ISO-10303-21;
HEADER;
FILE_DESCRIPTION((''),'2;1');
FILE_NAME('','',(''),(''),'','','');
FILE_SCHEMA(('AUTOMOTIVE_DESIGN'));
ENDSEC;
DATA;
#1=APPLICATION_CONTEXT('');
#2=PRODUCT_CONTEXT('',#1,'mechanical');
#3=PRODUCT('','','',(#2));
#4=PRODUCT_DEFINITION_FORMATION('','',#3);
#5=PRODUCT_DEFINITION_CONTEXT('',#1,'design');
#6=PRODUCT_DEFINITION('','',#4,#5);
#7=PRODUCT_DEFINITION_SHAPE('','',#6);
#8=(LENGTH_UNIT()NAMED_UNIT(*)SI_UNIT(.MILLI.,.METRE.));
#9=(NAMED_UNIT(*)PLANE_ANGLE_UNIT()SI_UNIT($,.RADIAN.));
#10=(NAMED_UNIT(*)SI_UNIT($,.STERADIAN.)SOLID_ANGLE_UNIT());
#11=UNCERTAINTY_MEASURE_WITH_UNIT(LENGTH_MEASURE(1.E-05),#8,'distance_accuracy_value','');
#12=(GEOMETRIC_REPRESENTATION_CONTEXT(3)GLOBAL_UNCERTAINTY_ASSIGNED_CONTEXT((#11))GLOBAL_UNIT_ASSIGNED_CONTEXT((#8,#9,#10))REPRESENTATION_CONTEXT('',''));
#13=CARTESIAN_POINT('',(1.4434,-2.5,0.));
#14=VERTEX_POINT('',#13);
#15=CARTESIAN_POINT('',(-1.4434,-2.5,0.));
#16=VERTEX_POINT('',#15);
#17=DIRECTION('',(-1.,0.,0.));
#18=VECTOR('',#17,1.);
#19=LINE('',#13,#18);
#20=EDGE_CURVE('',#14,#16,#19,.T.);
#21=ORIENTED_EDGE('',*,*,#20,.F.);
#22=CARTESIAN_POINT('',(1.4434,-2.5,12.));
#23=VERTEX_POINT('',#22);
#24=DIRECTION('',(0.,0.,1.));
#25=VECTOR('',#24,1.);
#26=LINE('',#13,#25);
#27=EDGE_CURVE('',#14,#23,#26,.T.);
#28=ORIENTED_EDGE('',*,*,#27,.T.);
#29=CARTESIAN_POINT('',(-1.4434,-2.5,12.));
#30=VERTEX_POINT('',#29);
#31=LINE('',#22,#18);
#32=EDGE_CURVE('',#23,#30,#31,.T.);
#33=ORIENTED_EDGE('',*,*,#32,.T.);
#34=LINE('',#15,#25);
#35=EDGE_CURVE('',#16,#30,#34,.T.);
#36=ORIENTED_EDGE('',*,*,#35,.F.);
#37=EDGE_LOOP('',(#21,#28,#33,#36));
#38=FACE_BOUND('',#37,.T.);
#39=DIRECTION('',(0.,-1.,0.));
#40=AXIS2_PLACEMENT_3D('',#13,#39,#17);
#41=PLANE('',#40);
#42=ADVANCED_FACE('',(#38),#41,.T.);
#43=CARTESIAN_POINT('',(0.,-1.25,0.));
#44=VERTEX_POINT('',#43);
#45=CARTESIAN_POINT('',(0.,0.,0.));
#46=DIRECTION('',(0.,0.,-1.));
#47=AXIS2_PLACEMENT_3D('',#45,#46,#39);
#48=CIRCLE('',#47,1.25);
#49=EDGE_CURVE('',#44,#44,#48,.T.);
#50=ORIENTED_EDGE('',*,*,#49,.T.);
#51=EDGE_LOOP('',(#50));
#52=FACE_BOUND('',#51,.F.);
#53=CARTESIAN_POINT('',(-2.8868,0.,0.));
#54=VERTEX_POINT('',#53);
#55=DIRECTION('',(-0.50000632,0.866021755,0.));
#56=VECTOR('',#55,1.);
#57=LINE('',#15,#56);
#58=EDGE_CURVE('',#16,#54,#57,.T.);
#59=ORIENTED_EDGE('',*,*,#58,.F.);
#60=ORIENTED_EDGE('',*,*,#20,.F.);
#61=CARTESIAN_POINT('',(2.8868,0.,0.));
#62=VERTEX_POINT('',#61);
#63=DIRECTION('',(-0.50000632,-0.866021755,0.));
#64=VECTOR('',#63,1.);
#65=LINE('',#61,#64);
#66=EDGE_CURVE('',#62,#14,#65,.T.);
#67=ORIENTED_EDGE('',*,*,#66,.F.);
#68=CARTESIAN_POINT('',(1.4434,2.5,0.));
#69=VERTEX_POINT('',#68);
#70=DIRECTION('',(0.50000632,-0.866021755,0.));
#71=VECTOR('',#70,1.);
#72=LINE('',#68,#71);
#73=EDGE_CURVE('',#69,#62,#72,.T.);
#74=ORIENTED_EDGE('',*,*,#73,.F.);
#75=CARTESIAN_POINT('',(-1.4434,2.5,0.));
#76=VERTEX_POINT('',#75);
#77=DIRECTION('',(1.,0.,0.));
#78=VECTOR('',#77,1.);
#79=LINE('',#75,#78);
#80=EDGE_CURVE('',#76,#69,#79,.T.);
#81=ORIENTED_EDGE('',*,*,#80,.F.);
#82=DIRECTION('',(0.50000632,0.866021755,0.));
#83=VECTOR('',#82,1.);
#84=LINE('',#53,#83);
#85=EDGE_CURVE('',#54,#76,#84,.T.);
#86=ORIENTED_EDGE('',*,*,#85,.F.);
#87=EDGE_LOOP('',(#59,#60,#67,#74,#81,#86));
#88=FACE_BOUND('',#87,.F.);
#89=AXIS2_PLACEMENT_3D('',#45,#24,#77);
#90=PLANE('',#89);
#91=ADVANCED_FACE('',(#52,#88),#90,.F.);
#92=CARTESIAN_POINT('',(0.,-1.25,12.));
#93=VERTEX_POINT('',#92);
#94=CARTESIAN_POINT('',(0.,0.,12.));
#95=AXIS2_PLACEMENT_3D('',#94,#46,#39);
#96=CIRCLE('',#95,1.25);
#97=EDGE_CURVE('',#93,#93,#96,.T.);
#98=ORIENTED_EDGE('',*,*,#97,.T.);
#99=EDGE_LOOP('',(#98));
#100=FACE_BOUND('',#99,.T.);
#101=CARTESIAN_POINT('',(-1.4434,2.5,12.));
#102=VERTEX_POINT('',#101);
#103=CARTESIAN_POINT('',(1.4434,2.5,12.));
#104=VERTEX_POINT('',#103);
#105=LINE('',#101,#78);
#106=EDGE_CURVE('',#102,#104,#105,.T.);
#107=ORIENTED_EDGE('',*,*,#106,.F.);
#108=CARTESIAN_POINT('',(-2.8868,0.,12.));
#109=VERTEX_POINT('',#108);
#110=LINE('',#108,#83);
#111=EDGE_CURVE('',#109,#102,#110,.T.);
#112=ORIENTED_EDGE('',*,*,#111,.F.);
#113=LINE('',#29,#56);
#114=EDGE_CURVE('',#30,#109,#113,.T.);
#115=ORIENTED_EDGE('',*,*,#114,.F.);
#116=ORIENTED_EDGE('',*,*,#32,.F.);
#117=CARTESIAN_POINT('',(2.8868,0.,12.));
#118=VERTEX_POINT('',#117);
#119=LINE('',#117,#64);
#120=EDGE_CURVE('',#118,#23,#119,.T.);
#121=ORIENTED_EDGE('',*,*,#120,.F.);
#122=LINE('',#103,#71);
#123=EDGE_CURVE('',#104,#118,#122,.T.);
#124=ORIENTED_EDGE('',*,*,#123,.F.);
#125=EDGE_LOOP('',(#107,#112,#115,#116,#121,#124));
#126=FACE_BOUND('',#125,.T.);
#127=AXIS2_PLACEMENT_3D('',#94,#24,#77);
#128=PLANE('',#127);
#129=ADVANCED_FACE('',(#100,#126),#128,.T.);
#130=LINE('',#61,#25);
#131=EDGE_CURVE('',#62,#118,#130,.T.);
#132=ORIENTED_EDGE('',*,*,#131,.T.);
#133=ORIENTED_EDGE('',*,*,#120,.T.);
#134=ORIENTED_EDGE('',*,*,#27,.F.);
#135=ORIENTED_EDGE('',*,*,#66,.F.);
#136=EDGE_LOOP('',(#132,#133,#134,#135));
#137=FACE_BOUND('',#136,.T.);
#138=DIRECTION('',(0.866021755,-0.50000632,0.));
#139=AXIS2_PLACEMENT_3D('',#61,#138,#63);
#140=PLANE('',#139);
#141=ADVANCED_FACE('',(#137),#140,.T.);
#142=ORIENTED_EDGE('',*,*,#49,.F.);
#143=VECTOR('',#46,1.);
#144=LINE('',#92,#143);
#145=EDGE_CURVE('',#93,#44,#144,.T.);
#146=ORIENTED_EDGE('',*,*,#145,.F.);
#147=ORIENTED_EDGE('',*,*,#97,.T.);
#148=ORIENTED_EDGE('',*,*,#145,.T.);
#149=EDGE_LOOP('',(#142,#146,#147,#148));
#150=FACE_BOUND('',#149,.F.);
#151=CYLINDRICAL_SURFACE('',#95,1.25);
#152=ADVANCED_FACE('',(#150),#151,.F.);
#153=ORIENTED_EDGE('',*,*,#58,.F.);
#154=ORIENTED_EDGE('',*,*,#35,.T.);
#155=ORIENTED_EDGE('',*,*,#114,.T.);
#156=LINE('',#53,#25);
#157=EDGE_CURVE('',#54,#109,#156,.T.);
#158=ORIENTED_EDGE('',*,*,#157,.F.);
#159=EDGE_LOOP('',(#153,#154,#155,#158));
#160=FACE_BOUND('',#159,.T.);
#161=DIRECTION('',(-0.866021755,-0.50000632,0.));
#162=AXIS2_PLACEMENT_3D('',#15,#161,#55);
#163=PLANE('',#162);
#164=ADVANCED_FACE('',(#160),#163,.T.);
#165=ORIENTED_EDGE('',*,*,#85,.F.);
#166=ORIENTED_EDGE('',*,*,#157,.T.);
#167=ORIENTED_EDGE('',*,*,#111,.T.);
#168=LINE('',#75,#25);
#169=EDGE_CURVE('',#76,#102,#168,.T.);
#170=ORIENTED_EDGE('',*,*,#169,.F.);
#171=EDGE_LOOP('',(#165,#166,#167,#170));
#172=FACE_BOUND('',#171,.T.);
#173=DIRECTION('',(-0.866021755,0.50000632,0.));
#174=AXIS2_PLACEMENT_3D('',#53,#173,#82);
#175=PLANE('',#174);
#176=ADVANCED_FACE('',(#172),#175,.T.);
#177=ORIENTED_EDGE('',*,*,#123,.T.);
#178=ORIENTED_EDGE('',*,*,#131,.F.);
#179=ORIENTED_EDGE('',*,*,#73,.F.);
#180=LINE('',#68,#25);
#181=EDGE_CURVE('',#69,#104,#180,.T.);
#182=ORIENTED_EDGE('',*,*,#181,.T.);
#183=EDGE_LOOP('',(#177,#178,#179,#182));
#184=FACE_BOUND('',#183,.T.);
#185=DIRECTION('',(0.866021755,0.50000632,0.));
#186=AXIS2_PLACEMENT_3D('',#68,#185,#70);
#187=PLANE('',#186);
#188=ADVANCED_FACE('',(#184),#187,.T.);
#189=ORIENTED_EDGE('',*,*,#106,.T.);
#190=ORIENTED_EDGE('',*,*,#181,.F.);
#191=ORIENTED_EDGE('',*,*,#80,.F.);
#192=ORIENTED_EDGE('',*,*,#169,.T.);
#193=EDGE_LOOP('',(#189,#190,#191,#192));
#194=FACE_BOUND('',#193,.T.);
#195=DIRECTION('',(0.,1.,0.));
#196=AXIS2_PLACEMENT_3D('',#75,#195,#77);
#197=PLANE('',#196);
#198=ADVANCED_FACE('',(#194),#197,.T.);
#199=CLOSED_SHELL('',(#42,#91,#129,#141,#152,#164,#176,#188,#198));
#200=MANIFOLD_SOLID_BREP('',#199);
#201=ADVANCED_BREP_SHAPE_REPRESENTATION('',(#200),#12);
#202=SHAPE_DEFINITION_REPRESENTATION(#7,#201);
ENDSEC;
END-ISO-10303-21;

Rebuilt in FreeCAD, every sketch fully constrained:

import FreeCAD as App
import Part
import Sketcher
from FreeCAD import Vector
Q = App.Units.Quantity


def add_polygon(sketch, points):
    """Adds a closed chain of lines whose ends are joined by coincident constraints."""
    first, n = sketch.GeometryCount, len(points)
    for a, b in zip(points, points[1:] + points[:1]):
        sketch.addGeometry(Part.LineSegment(App.Vector(*a, 0), App.Vector(*b, 0)), False)
    for i in range(n):
        sketch.addConstraint(Sketcher.Constraint("Coincident", first + i, 2, first + (i + 1) % n, 1))

doc = App.newDocument("Part")
body = doc.addObject("PartDesign::Body", "Body")

# Sketch on XY plane
sketch1 = doc.addObject("Sketcher::SketchObject", "Sketch")
body.addObject(sketch1)
sketch1.AttachmentSupport = (doc.XY_Plane, [""])
sketch1.MapMode = "FlatFace"
add_polygon(sketch1, [(1.4, 2.5), (-1.4, 2.5), (-2.9, 0), (-1.4, -2.5), (1.4, -2.5), (2.9, 0)])  # lines 0-5
sketch1.addConstraint([
    Sketcher.Constraint("Horizontal", 0),
    Sketcher.Constraint("Horizontal", 3),
    Sketcher.Constraint("Symmetric", 0, 2, 3, 2, -1, 1),
    Sketcher.Constraint("Symmetric", 1, 2, 4, 2, -1, 1),
    Sketcher.Constraint("PointOnObject", 1, 2, -1),
    Sketcher.Constraint("Parallel", 2, 5),
    Sketcher.Constraint("Vertical", 0, 2, 2, 2),
    Sketcher.Constraint("Angle", 1, Q("-120.0004 deg")),
    Sketcher.Constraint("DistanceY", 2, 2, 0, 2, Q("5 mm")),
    Sketcher.Constraint("DistanceX", 0, 2, 0, 1, Q("2.8868 mm")),
])
pad1 = doc.addObject("PartDesign::Pad", "Pad")
body.addObject(pad1)
pad1.Profile = sketch1
pad1.Length = 12

# Sketch on XY plane
sketch2 = doc.addObject("Sketcher::SketchObject", "Sketch001")
body.addObject(sketch2)
sketch2.AttachmentSupport = (doc.XY_Plane, [""])
sketch2.MapMode = "FlatFace"
sketch2.AttachmentOffset = App.Placement(Vector(0, 0, 12), App.Rotation())
sketch2.addGeometry(Part.Circle(Vector(0, 0, 0), Vector(0, 0, 1), 1.2), False)
sketch2.addConstraint([
    Sketcher.Constraint("Coincident", 0, 3, -1, 1),
    Sketcher.Constraint("Diameter", 0, Q("2.5 mm")),
])
doc.recompute()
hole = doc.addObject("PartDesign::Hole", "Hole")
body.addObject(hole)
hole.Profile = sketch2
hole.ThreadType = "None"
hole.Diameter = 2.5
hole.DepthType = "ThroughAll"

doc.recompute()
